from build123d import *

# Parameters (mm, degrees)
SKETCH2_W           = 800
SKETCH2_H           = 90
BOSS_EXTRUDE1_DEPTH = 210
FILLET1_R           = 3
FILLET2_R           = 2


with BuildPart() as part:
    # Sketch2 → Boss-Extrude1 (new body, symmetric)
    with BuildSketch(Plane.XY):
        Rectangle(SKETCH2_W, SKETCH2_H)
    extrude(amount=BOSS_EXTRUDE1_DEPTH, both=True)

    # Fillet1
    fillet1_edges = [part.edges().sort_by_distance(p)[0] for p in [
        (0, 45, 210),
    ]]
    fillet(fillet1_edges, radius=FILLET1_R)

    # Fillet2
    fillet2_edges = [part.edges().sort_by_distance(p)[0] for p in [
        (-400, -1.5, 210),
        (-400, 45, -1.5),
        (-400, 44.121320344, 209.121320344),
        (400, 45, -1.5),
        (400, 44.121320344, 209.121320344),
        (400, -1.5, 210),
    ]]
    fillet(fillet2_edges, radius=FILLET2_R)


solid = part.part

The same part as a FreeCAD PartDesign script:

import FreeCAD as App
import Part
import Sketcher
from FreeCAD import Vector
Q = App.Units.Quantity


def edges_at(feature, points):
    """Names of the edges that pass closest to the given points."""
    edges = feature.Shape.Edges
    near = lambda p: min(range(len(edges)), key=lambda i: edges[i].distToShape(Part.Vertex(*p))[0])
    return sorted({f"Edge{near(p) + 1}" for p in points})

doc = App.newDocument("Part")
params = doc.addObject("Spreadsheet::Sheet", "Params")
for row, (alias, value) in enumerate([
    ("sketch1_width", "800 mm"),
    ("sketch1_height", "90 mm"),
    ("pad1_length", "420 mm"),
    ("fillet_radius", "3 mm"),
    ("fillet2_radius", "2 mm"),
], start=1):
    params.set(f"A{row}", alias)
    params.set(f"B{row}", "=" + value)
    params.setAlias(f"B{row}", alias)

body = doc.addObject("PartDesign::Body", "Body")

sketch1 = body.newObject("Sketcher::SketchObject", "Sketch")
sketch1.AttachmentSupport = (doc.getObject("XY_Plane"), [""])
sketch1.MapMode = "FlatFace"
sketch1.addGeometry([
    Part.LineSegment(Vector(-400, 45, 0), Vector(-400, -45, 0)),
    Part.LineSegment(Vector(-400, -45, 0), Vector(400, -45, 0)),
    Part.LineSegment(Vector(400, -45, 0), Vector(400, 45, 0)),
    Part.LineSegment(Vector(400, 45, 0), Vector(-400, 45, 0)),
], False)
sketch1.addConstraint([
    Sketcher.Constraint("Coincident", 0, 2, 1, 1),
    Sketcher.Constraint("Coincident", 1, 2, 2, 1),
    Sketcher.Constraint("Coincident", 2, 2, 3, 1),
    Sketcher.Constraint("Coincident", 3, 2, 0, 1),
    Sketcher.Constraint("Vertical", 0),
    Sketcher.Constraint("Horizontal", 1),
    Sketcher.Constraint("Vertical", 2),
    Sketcher.Constraint("Horizontal", 3),
    Sketcher.Constraint("Symmetric", 0, 2, 2, 2, -1, 1),
    Sketcher.Constraint("DistanceX", 1, 1, 1, 2, Q("800 mm")),
    Sketcher.Constraint("DistanceY", 0, 2, 0, 1, Q("90 mm")),
])
sketch1.setExpression("Constraints[9]", "Params.sketch1_width")
sketch1.setExpression("Constraints[10]", "Params.sketch1_height")
pad1 = body.newObject("PartDesign::Pad", "Pad")
pad1.Profile = sketch1
pad1.setExpression("Length", "Params.pad1_length")
pad1.Midplane = True
doc.recompute()

fillet = body.newObject("PartDesign::Fillet", "Fillet")
fillet.Base = (pad1, edges_at(pad1, [(0, 45, 210)]))
fillet.setExpression("Radius", "Params.fillet_radius")
doc.recompute()

fillet2 = body.newObject("PartDesign::Fillet", "Fillet001")
fillet2.Base = (fillet, edges_at(fillet, [
    (-400, -1.5, 210),
    (-400, 45, -1.5),
    (-400, 44.121, 209.121),
    (400, 45, -1.5),
    (400, 44.121, 209.121),
    (400, -1.5, 210),
]))
fillet2.setExpression("Radius", "Params.fillet2_radius")

doc.recompute()
